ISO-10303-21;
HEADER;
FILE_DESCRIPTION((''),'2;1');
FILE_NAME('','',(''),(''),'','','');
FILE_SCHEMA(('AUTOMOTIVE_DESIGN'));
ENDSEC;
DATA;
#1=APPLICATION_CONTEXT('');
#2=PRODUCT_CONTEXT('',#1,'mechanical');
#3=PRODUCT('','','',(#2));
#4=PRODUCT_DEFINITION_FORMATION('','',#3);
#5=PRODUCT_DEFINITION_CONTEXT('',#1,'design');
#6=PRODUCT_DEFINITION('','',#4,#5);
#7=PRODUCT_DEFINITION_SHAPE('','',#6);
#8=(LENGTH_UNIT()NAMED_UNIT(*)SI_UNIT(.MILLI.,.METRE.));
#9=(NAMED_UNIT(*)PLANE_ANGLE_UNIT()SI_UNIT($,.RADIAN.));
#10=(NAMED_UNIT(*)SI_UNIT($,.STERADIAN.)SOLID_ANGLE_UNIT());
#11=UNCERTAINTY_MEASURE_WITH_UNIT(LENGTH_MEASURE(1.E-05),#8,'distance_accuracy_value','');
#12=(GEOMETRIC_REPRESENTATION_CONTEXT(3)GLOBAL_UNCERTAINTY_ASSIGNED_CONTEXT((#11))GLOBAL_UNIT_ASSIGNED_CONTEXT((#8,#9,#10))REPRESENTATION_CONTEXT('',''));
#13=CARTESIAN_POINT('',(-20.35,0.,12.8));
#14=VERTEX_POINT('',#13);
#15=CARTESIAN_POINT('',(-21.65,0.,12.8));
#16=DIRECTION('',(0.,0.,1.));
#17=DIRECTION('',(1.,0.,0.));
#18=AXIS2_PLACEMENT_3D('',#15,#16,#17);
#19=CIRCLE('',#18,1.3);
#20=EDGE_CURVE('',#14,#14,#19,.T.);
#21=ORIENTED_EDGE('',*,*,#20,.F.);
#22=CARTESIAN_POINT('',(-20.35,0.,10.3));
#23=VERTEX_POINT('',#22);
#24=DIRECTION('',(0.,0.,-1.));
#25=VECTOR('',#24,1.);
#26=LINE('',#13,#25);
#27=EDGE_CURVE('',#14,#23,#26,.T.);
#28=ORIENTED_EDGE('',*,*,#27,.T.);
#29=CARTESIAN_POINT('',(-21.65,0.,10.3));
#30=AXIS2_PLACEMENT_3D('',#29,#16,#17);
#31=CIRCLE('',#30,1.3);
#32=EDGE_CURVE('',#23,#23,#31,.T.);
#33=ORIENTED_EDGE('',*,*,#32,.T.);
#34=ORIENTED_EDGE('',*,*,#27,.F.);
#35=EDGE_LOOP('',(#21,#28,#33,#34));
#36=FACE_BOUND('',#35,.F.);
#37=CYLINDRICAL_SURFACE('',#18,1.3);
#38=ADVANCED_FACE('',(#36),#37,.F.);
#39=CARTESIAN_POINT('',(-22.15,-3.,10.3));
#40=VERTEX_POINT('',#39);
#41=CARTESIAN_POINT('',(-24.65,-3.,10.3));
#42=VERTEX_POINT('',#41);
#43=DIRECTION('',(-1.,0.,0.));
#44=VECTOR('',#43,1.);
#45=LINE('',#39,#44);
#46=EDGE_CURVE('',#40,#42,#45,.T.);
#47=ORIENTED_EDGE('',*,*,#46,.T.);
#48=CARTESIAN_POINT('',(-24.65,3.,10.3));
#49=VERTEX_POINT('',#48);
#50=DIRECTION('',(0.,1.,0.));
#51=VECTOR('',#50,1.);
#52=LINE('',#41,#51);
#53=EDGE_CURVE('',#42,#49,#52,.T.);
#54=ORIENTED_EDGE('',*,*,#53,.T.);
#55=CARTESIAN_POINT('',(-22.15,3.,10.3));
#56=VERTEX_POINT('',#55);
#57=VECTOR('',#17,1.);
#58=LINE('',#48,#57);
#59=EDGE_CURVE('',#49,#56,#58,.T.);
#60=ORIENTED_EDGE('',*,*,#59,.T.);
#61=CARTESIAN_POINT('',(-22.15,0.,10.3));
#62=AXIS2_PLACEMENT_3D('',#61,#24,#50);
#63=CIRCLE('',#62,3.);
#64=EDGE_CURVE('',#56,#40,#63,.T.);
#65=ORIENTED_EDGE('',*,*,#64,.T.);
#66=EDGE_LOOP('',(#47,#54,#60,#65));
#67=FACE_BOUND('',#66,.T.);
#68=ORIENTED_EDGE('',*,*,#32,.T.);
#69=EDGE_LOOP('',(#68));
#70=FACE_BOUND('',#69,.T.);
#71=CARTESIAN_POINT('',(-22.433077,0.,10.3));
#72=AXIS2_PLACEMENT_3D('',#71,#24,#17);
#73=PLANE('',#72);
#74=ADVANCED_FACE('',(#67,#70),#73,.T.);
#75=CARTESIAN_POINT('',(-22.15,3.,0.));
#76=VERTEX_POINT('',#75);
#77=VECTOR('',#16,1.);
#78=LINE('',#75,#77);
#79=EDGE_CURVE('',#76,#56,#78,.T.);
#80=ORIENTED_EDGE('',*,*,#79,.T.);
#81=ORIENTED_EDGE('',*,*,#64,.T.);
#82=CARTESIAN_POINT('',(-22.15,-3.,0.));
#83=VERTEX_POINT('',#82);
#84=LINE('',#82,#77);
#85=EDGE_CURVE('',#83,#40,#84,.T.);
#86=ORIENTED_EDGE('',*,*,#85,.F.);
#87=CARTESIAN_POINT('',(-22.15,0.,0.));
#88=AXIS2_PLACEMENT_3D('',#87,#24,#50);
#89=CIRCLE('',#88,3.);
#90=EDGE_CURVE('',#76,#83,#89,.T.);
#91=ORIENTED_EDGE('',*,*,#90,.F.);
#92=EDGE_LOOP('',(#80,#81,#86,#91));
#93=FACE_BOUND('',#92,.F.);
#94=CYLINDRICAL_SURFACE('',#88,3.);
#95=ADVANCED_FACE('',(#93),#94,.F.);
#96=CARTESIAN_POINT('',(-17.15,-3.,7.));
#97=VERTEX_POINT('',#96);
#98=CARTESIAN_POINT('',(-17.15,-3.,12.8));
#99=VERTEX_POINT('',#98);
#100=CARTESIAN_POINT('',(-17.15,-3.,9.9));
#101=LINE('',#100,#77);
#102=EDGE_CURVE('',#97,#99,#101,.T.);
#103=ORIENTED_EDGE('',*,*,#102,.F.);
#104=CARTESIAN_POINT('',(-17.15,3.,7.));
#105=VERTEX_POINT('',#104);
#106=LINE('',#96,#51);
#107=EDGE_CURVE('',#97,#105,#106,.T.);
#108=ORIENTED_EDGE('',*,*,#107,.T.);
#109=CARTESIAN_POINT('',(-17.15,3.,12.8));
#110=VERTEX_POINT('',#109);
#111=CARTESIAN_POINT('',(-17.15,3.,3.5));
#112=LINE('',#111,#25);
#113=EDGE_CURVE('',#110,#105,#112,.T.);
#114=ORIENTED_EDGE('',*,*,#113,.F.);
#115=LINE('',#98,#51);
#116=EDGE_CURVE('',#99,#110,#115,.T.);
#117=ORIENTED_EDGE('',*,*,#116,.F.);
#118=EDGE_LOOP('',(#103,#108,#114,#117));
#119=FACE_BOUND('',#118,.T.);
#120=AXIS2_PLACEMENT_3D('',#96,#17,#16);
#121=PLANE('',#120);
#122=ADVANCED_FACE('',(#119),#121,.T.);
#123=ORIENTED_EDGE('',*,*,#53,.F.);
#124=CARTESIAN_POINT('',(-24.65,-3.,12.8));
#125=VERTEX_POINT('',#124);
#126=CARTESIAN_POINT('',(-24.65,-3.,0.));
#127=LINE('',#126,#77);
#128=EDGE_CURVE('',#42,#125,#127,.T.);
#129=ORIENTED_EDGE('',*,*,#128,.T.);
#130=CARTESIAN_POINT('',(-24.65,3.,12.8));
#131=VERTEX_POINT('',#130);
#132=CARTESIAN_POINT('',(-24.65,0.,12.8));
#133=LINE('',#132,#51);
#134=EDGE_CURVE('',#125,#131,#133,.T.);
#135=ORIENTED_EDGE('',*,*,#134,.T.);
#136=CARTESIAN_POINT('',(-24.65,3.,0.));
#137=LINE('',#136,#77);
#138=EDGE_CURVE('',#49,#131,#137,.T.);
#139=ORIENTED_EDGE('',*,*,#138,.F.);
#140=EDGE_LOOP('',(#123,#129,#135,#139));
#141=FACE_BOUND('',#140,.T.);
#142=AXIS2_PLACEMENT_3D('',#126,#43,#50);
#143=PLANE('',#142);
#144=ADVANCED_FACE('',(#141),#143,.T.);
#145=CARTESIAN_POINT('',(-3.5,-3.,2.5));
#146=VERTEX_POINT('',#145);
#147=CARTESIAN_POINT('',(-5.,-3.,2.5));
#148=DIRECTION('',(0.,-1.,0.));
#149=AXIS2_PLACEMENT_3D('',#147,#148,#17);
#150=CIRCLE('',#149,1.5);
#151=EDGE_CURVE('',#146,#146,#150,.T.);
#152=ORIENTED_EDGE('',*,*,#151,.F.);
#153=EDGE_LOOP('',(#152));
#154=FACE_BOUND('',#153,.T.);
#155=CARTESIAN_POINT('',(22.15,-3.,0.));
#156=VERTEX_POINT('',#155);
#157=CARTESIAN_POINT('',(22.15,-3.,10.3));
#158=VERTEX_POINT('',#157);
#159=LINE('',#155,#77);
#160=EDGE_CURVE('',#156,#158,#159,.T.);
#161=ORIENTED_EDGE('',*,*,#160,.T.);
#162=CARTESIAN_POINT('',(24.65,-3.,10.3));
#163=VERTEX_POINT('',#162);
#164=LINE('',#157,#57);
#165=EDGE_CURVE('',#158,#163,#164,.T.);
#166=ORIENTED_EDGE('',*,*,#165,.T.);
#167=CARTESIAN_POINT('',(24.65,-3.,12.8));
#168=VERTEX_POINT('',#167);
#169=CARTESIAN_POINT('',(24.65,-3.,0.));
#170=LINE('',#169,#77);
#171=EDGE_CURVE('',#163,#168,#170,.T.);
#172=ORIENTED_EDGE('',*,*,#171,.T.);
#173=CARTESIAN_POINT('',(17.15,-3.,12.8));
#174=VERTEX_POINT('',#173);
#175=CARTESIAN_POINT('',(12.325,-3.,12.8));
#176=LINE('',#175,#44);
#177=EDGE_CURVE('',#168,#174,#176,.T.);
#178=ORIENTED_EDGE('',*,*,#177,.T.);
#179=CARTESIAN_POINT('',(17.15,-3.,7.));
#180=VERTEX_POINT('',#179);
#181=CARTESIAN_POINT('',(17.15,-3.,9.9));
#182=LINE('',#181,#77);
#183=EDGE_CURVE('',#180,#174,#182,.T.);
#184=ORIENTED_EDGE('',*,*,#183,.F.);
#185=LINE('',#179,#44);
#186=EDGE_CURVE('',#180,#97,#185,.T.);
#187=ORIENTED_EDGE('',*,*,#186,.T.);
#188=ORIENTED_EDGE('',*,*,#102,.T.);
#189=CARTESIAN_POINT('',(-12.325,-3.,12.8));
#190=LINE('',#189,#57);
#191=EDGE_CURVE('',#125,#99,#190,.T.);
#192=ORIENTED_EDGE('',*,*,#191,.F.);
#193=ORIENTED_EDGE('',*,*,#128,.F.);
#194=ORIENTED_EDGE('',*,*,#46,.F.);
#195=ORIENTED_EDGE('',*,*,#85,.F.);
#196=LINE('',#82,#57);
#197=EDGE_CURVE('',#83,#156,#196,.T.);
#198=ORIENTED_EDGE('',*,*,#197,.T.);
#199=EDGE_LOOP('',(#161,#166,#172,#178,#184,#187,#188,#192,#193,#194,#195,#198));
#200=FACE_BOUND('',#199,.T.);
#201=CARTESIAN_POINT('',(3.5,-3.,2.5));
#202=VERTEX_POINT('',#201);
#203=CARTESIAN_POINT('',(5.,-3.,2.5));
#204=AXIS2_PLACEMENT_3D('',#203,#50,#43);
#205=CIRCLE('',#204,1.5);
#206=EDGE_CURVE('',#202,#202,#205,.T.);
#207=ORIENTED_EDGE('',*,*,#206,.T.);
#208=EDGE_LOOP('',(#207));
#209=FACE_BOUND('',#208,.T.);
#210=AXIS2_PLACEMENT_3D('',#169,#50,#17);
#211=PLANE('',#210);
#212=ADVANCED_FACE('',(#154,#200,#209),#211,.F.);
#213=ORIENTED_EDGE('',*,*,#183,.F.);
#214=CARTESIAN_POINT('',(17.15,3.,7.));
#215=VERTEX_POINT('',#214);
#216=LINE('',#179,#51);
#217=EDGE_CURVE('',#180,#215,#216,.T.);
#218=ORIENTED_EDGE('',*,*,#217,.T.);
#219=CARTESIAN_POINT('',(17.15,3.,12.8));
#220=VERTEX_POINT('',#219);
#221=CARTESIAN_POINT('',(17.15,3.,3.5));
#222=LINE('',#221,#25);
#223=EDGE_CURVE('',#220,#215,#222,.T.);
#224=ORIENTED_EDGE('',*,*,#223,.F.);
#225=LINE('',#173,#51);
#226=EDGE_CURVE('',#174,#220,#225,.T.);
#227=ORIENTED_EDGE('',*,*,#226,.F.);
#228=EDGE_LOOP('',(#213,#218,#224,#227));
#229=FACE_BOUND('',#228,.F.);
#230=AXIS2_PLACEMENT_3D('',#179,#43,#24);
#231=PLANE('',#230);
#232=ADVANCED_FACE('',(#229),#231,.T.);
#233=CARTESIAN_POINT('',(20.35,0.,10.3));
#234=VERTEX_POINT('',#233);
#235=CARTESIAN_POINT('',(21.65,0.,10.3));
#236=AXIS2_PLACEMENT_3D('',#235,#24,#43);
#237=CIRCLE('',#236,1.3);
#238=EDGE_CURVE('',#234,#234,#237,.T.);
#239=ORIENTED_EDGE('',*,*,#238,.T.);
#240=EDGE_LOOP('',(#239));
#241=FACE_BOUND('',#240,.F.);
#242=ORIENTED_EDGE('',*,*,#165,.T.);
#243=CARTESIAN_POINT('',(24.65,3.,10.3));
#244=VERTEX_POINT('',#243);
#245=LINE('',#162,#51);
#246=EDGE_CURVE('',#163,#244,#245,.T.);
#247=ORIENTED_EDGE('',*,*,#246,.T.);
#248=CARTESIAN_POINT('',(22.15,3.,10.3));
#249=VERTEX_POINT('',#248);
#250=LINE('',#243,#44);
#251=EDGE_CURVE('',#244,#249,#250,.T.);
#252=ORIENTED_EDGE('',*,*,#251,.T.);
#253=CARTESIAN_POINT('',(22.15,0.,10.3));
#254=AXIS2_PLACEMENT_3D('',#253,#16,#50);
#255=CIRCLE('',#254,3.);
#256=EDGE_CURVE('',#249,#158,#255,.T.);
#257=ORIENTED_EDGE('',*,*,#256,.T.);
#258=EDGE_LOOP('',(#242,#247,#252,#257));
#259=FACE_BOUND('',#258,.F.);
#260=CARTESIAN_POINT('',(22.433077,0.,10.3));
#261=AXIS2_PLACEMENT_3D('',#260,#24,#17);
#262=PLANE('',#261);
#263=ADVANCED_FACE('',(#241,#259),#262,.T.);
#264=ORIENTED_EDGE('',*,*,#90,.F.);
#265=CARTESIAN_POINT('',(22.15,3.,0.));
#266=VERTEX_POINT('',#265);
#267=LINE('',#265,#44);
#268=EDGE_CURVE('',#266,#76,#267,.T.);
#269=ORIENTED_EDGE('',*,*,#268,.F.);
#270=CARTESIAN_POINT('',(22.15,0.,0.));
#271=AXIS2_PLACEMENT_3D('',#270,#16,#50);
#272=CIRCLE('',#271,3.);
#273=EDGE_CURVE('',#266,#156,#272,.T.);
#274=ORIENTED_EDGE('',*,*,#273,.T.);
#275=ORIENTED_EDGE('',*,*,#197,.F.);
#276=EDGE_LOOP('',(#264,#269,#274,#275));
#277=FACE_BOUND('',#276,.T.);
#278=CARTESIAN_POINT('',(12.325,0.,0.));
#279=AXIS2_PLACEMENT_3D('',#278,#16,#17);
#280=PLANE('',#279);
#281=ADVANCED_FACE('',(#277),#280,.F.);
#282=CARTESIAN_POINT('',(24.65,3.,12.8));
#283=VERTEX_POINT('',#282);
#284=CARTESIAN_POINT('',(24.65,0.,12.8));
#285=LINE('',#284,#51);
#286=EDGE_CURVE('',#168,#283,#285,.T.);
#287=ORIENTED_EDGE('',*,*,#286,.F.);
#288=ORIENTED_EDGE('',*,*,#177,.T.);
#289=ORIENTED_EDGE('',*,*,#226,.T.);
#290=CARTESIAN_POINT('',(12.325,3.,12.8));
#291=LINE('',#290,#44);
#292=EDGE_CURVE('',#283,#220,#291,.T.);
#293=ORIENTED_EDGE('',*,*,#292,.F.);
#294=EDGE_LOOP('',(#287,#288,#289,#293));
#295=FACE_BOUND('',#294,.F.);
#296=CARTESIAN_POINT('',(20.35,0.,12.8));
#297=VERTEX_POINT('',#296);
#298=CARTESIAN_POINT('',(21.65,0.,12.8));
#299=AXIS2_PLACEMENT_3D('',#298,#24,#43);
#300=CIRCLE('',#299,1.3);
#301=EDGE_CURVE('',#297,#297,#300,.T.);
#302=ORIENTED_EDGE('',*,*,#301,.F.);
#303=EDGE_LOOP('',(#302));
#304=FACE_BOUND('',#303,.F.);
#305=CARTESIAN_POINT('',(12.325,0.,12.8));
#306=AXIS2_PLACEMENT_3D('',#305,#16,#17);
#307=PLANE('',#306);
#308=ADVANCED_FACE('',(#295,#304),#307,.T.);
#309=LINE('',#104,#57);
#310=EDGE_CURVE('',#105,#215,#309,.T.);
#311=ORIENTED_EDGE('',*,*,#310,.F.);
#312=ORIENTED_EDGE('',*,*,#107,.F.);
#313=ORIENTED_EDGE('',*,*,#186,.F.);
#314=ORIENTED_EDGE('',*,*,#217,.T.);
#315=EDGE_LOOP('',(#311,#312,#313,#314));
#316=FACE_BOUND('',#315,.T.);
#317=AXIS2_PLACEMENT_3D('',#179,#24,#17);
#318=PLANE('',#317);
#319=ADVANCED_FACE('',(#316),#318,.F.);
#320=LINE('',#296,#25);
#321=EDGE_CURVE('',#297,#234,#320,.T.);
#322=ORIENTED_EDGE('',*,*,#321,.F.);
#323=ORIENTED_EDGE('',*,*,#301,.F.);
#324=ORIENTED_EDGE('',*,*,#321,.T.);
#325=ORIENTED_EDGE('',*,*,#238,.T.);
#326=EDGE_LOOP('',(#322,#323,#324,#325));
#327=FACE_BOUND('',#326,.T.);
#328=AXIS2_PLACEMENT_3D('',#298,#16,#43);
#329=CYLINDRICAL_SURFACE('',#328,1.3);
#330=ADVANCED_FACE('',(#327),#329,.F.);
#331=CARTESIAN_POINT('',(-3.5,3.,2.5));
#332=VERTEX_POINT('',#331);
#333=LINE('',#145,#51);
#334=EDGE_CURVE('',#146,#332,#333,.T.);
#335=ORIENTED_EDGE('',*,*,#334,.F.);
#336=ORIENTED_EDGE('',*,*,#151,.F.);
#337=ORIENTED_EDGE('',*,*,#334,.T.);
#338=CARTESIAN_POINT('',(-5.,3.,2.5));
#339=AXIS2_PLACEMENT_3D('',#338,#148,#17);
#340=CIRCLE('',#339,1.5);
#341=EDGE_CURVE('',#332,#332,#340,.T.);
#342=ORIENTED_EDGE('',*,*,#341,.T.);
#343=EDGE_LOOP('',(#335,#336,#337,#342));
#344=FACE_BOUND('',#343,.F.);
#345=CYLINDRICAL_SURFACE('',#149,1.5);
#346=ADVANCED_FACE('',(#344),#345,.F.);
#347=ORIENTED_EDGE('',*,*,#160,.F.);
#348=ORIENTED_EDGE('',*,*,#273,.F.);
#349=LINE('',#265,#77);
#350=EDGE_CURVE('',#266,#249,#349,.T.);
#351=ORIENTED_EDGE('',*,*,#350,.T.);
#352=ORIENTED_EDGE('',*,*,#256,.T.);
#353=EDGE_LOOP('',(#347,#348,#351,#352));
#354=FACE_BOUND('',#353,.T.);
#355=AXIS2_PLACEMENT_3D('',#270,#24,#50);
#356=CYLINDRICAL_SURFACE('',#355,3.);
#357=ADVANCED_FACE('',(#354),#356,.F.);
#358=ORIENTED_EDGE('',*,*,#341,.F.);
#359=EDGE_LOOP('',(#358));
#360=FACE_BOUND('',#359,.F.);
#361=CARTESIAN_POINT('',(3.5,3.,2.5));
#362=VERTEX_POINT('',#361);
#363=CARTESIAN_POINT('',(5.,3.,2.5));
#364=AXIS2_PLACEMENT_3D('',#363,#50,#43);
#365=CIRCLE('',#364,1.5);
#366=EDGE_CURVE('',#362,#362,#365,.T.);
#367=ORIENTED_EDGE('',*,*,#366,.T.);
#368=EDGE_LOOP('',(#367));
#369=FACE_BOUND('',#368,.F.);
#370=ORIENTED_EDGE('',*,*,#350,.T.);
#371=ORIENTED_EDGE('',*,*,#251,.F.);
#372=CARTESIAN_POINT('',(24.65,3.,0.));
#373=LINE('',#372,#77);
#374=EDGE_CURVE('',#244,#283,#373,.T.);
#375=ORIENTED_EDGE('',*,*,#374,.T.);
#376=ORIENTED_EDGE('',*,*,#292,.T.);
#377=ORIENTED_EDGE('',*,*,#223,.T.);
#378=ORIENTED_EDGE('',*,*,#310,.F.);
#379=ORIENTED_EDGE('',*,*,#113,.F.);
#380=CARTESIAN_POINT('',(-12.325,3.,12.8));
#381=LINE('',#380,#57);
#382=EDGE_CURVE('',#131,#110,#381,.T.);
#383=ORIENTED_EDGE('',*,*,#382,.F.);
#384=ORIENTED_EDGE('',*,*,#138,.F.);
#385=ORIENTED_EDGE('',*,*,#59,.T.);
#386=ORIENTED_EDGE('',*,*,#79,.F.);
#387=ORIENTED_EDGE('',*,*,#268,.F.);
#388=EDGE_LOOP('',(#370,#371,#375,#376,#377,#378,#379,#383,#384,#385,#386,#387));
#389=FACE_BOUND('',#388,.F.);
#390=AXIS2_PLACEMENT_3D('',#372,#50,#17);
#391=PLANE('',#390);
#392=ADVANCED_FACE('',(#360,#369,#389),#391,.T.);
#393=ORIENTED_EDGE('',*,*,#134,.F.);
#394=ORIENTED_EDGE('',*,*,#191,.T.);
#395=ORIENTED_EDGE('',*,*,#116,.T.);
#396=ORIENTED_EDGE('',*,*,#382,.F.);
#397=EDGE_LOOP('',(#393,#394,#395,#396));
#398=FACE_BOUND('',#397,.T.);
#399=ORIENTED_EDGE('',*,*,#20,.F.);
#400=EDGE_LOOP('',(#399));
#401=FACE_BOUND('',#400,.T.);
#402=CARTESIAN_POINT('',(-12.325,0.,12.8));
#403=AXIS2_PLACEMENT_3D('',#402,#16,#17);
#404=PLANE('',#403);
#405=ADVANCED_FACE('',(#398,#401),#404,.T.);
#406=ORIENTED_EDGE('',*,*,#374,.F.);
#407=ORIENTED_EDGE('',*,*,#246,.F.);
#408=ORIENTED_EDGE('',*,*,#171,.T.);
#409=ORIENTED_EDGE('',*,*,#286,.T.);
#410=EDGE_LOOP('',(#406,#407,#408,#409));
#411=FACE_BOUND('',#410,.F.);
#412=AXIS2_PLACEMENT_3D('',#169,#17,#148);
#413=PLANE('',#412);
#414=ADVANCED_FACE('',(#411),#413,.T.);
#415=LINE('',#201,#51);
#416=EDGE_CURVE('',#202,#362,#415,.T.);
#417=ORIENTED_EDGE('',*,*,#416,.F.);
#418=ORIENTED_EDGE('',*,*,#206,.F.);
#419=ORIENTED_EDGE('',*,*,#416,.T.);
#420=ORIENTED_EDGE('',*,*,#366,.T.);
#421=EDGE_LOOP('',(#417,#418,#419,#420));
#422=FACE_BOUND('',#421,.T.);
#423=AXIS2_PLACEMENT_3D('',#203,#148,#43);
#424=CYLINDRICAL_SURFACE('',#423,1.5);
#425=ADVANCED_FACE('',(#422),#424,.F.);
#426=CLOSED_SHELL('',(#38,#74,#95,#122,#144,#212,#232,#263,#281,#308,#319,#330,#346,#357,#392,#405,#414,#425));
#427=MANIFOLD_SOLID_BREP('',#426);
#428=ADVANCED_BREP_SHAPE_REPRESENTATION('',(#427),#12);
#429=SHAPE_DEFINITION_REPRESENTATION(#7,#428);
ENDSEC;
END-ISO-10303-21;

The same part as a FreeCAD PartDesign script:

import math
import FreeCAD as App
import Part
import Sketcher
Q = App.Units.Quantity


def add_polygon(sketch, points):
    """Adds a closed chain of lines whose ends are joined by coincident constraints."""
    first, n = sketch.GeometryCount, len(points)
    for a, b in zip(points, points[1:] + points[:1]):
        sketch.addGeometry(Part.LineSegment(App.Vector(*a, 0), App.Vector(*b, 0)), False)
    for i in range(n):
        sketch.addConstraint(Sketcher.Constraint("Coincident", first + i, 2, first + (i + 1) % n, 1))

doc = App.newDocument("Part")
body = doc.addObject("PartDesign::Body", "Body")

sketch1 = doc.addObject("Sketcher::SketchObject", "Sketch")
body.addObject(sketch1)
sketch1.AttachmentSupport = (doc.XY_Plane, [""])
sketch1.MapMode = "FlatFace"
add_polygon(sketch1, [(-25, 3), (-25, -3), (0, -3), (0, 3)])
sketch1.addConstraint([
    Sketcher.Constraint("Vertical", 0),
    Sketcher.Constraint("Horizontal", 1),
    Sketcher.Constraint("Vertical", 2),
    Sketcher.Constraint("Horizontal", 3),
    Sketcher.Constraint("Symmetric", 1, 2, 2, 2, -1, 1),
    Sketcher.Constraint("DistanceY", 0, 2, 0, 1, Q("6 mm")),
    Sketcher.Constraint("DistanceX", 1, 1, 1, 2, Q("24.65 mm")),
])
pad1 = doc.addObject("PartDesign::Pad", "Pad")
body.addObject(pad1)
pad1.Profile = sketch1
pad1.Length = 12.8

sketch2 = doc.addObject("Sketcher::SketchObject", "Sketch001")
body.addObject(sketch2)
sketch2.AttachmentSupport = (doc.XZ_Plane, [""])
sketch2.MapMode = "FlatFace"
sketch2.AttachmentOffset = App.Placement(App.Vector(0, 0, 3), App.Rotation())
add_polygon(sketch2, [(-17, 13), (-17, 7), (0, 7), (0, 13)])
sketch2.addConstraint([
    Sketcher.Constraint("Vertical", 0),
    Sketcher.Constraint("Horizontal", 1),
    Sketcher.Constraint("Vertical", 2),
    Sketcher.Constraint("Horizontal", 3),
    Sketcher.Constraint("PointOnObject", 1, 2, -2),
    Sketcher.Constraint("DistanceY", 0, 2, 0, 1, Q("5.8 mm")),
    Sketcher.Constraint("DistanceY", -1, 1, 0, 2, Q("7 mm")),
    Sketcher.Constraint("DistanceX", 1, 1, 1, 2, Q("17.15 mm")),
])
pocket1 = doc.addObject("PartDesign::Pocket", "Pocket")
body.addObject(pocket1)
pocket1.Profile = sketch2
pocket1.Length = 25

sketch3 = doc.addObject("Sketcher::SketchObject", "Sketch002")
body.addObject(sketch3)
sketch3.AttachmentSupport = (doc.XY_Plane, [""])
sketch3.MapMode = "FlatFace"
sketch3.addGeometry([
    Part.LineSegment(App.Vector(-24.6, 3, 0), App.Vector(-22.1, 3, 0)),
    Part.ArcOfCircle(Part.Circle(App.Vector(-22.1, 0, 0), App.Vector(0, 0, 1), 3), math.radians(-90), math.radians(90)),
    Part.LineSegment(App.Vector(-22.1, -3, 0), App.Vector(-24.6, -3, 0)),
    Part.LineSegment(App.Vector(-24.6, -3, 0), App.Vector(-24.6, 3, 0)),
], False)
sketch3.addConstraint([
    Sketcher.Constraint("Tangent", 0, 2, 1, 2),
    Sketcher.Constraint("Tangent", 1, 1, 2, 1),
    Sketcher.Constraint("Coincident", 2, 2, 3, 1),
    Sketcher.Constraint("Coincident", 3, 2, 0, 1),
    Sketcher.Constraint("Horizontal", 0),
    Sketcher.Constraint("Horizontal", 2),
    Sketcher.Constraint("Vertical", 3),
    Sketcher.Constraint("PointOnObject", 1, 3, -1),
    Sketcher.Constraint("Radius", 1, Q("3 mm")),
    Sketcher.Constraint("DistanceX", 0, 1, 0, 2, Q("2.5 mm")),
    Sketcher.Constraint("DistanceX", 1, 3, -1, 1, Q("22.15 mm")),
])
pocket2 = doc.addObject("PartDesign::Pocket", "Pocket001")
body.addObject(pocket2)
pocket2.Profile = sketch3
pocket2.Length = 10.3
pocket2.Reversed = True

sketch4 = doc.addObject("Sketcher::SketchObject", "Sketch003")
body.addObject(sketch4)
sketch4.AttachmentSupport = (doc.XY_Plane, [""])
sketch4.MapMode = "FlatFace"
sketch4.AttachmentOffset = App.Placement(App.Vector(0, 0, 12.8), App.Rotation())
sketch4.addGeometry(Part.Circle(App.Vector(-21.6, 0, 0), App.Vector(0, 0, 1), 1.3), False)
sketch4.addConstraint([
    Sketcher.Constraint("PointOnObject", 0, 3, -1),
    Sketcher.Constraint("Diameter", 0, Q("2.6 mm")),
    Sketcher.Constraint("DistanceX", 0, 3, -1, 1, Q("21.65 mm")),
])
pocket3 = doc.addObject("PartDesign::Pocket", "Pocket002")
body.addObject(pocket3)
pocket3.Profile = sketch4
pocket3.Length = 25

sketch5 = doc.addObject("Sketcher::SketchObject", "Sketch004")
body.addObject(sketch5)
sketch5.AttachmentSupport = (doc.XZ_Plane, [""])
sketch5.MapMode = "FlatFace"
sketch5.AttachmentOffset = App.Placement(App.Vector(0, 0, 3), App.Rotation())
sketch5.addGeometry(Part.Circle(App.Vector(-5, 2.5, 0), App.Vector(0, 0, 1), 1.5), False)
sketch5.addConstraint([
    Sketcher.Constraint("Diameter", 0, Q("3 mm")),
    Sketcher.Constraint("DistanceX", 0, 3, -1, 1, Q("5 mm")),
    Sketcher.Constraint("DistanceY", -1, 1, 0, 3, Q("2.5 mm")),
])
pocket4 = doc.addObject("PartDesign::Pocket", "Pocket003")
body.addObject(pocket4)
pocket4.Profile = sketch5
pocket4.Length = 25
body2 = doc.addObject("PartDesign::Body", "Body001")
doc.recompute()

body2.BaseFeature = body
doc.recompute()

mirroring = doc.addObject("Part::Mirroring", "Mirroring")
mirroring.Source = body
mirroring.Base = App.Vector(0, 0, 3.5)
mirroring.Normal = App.Vector(1, 0, 0)
body3 = doc.addObject("PartDesign::Body", "Body002")
body3.BaseFeature = mirroring
boolean = doc.addObject("PartDesign::Boolean", "Boolean")
body2.addObject(boolean)
boolean.Type = "Fuse"
boolean.addObjects([body3])
doc.recompute()
mirroring.Visibility = False

doc.recompute()
